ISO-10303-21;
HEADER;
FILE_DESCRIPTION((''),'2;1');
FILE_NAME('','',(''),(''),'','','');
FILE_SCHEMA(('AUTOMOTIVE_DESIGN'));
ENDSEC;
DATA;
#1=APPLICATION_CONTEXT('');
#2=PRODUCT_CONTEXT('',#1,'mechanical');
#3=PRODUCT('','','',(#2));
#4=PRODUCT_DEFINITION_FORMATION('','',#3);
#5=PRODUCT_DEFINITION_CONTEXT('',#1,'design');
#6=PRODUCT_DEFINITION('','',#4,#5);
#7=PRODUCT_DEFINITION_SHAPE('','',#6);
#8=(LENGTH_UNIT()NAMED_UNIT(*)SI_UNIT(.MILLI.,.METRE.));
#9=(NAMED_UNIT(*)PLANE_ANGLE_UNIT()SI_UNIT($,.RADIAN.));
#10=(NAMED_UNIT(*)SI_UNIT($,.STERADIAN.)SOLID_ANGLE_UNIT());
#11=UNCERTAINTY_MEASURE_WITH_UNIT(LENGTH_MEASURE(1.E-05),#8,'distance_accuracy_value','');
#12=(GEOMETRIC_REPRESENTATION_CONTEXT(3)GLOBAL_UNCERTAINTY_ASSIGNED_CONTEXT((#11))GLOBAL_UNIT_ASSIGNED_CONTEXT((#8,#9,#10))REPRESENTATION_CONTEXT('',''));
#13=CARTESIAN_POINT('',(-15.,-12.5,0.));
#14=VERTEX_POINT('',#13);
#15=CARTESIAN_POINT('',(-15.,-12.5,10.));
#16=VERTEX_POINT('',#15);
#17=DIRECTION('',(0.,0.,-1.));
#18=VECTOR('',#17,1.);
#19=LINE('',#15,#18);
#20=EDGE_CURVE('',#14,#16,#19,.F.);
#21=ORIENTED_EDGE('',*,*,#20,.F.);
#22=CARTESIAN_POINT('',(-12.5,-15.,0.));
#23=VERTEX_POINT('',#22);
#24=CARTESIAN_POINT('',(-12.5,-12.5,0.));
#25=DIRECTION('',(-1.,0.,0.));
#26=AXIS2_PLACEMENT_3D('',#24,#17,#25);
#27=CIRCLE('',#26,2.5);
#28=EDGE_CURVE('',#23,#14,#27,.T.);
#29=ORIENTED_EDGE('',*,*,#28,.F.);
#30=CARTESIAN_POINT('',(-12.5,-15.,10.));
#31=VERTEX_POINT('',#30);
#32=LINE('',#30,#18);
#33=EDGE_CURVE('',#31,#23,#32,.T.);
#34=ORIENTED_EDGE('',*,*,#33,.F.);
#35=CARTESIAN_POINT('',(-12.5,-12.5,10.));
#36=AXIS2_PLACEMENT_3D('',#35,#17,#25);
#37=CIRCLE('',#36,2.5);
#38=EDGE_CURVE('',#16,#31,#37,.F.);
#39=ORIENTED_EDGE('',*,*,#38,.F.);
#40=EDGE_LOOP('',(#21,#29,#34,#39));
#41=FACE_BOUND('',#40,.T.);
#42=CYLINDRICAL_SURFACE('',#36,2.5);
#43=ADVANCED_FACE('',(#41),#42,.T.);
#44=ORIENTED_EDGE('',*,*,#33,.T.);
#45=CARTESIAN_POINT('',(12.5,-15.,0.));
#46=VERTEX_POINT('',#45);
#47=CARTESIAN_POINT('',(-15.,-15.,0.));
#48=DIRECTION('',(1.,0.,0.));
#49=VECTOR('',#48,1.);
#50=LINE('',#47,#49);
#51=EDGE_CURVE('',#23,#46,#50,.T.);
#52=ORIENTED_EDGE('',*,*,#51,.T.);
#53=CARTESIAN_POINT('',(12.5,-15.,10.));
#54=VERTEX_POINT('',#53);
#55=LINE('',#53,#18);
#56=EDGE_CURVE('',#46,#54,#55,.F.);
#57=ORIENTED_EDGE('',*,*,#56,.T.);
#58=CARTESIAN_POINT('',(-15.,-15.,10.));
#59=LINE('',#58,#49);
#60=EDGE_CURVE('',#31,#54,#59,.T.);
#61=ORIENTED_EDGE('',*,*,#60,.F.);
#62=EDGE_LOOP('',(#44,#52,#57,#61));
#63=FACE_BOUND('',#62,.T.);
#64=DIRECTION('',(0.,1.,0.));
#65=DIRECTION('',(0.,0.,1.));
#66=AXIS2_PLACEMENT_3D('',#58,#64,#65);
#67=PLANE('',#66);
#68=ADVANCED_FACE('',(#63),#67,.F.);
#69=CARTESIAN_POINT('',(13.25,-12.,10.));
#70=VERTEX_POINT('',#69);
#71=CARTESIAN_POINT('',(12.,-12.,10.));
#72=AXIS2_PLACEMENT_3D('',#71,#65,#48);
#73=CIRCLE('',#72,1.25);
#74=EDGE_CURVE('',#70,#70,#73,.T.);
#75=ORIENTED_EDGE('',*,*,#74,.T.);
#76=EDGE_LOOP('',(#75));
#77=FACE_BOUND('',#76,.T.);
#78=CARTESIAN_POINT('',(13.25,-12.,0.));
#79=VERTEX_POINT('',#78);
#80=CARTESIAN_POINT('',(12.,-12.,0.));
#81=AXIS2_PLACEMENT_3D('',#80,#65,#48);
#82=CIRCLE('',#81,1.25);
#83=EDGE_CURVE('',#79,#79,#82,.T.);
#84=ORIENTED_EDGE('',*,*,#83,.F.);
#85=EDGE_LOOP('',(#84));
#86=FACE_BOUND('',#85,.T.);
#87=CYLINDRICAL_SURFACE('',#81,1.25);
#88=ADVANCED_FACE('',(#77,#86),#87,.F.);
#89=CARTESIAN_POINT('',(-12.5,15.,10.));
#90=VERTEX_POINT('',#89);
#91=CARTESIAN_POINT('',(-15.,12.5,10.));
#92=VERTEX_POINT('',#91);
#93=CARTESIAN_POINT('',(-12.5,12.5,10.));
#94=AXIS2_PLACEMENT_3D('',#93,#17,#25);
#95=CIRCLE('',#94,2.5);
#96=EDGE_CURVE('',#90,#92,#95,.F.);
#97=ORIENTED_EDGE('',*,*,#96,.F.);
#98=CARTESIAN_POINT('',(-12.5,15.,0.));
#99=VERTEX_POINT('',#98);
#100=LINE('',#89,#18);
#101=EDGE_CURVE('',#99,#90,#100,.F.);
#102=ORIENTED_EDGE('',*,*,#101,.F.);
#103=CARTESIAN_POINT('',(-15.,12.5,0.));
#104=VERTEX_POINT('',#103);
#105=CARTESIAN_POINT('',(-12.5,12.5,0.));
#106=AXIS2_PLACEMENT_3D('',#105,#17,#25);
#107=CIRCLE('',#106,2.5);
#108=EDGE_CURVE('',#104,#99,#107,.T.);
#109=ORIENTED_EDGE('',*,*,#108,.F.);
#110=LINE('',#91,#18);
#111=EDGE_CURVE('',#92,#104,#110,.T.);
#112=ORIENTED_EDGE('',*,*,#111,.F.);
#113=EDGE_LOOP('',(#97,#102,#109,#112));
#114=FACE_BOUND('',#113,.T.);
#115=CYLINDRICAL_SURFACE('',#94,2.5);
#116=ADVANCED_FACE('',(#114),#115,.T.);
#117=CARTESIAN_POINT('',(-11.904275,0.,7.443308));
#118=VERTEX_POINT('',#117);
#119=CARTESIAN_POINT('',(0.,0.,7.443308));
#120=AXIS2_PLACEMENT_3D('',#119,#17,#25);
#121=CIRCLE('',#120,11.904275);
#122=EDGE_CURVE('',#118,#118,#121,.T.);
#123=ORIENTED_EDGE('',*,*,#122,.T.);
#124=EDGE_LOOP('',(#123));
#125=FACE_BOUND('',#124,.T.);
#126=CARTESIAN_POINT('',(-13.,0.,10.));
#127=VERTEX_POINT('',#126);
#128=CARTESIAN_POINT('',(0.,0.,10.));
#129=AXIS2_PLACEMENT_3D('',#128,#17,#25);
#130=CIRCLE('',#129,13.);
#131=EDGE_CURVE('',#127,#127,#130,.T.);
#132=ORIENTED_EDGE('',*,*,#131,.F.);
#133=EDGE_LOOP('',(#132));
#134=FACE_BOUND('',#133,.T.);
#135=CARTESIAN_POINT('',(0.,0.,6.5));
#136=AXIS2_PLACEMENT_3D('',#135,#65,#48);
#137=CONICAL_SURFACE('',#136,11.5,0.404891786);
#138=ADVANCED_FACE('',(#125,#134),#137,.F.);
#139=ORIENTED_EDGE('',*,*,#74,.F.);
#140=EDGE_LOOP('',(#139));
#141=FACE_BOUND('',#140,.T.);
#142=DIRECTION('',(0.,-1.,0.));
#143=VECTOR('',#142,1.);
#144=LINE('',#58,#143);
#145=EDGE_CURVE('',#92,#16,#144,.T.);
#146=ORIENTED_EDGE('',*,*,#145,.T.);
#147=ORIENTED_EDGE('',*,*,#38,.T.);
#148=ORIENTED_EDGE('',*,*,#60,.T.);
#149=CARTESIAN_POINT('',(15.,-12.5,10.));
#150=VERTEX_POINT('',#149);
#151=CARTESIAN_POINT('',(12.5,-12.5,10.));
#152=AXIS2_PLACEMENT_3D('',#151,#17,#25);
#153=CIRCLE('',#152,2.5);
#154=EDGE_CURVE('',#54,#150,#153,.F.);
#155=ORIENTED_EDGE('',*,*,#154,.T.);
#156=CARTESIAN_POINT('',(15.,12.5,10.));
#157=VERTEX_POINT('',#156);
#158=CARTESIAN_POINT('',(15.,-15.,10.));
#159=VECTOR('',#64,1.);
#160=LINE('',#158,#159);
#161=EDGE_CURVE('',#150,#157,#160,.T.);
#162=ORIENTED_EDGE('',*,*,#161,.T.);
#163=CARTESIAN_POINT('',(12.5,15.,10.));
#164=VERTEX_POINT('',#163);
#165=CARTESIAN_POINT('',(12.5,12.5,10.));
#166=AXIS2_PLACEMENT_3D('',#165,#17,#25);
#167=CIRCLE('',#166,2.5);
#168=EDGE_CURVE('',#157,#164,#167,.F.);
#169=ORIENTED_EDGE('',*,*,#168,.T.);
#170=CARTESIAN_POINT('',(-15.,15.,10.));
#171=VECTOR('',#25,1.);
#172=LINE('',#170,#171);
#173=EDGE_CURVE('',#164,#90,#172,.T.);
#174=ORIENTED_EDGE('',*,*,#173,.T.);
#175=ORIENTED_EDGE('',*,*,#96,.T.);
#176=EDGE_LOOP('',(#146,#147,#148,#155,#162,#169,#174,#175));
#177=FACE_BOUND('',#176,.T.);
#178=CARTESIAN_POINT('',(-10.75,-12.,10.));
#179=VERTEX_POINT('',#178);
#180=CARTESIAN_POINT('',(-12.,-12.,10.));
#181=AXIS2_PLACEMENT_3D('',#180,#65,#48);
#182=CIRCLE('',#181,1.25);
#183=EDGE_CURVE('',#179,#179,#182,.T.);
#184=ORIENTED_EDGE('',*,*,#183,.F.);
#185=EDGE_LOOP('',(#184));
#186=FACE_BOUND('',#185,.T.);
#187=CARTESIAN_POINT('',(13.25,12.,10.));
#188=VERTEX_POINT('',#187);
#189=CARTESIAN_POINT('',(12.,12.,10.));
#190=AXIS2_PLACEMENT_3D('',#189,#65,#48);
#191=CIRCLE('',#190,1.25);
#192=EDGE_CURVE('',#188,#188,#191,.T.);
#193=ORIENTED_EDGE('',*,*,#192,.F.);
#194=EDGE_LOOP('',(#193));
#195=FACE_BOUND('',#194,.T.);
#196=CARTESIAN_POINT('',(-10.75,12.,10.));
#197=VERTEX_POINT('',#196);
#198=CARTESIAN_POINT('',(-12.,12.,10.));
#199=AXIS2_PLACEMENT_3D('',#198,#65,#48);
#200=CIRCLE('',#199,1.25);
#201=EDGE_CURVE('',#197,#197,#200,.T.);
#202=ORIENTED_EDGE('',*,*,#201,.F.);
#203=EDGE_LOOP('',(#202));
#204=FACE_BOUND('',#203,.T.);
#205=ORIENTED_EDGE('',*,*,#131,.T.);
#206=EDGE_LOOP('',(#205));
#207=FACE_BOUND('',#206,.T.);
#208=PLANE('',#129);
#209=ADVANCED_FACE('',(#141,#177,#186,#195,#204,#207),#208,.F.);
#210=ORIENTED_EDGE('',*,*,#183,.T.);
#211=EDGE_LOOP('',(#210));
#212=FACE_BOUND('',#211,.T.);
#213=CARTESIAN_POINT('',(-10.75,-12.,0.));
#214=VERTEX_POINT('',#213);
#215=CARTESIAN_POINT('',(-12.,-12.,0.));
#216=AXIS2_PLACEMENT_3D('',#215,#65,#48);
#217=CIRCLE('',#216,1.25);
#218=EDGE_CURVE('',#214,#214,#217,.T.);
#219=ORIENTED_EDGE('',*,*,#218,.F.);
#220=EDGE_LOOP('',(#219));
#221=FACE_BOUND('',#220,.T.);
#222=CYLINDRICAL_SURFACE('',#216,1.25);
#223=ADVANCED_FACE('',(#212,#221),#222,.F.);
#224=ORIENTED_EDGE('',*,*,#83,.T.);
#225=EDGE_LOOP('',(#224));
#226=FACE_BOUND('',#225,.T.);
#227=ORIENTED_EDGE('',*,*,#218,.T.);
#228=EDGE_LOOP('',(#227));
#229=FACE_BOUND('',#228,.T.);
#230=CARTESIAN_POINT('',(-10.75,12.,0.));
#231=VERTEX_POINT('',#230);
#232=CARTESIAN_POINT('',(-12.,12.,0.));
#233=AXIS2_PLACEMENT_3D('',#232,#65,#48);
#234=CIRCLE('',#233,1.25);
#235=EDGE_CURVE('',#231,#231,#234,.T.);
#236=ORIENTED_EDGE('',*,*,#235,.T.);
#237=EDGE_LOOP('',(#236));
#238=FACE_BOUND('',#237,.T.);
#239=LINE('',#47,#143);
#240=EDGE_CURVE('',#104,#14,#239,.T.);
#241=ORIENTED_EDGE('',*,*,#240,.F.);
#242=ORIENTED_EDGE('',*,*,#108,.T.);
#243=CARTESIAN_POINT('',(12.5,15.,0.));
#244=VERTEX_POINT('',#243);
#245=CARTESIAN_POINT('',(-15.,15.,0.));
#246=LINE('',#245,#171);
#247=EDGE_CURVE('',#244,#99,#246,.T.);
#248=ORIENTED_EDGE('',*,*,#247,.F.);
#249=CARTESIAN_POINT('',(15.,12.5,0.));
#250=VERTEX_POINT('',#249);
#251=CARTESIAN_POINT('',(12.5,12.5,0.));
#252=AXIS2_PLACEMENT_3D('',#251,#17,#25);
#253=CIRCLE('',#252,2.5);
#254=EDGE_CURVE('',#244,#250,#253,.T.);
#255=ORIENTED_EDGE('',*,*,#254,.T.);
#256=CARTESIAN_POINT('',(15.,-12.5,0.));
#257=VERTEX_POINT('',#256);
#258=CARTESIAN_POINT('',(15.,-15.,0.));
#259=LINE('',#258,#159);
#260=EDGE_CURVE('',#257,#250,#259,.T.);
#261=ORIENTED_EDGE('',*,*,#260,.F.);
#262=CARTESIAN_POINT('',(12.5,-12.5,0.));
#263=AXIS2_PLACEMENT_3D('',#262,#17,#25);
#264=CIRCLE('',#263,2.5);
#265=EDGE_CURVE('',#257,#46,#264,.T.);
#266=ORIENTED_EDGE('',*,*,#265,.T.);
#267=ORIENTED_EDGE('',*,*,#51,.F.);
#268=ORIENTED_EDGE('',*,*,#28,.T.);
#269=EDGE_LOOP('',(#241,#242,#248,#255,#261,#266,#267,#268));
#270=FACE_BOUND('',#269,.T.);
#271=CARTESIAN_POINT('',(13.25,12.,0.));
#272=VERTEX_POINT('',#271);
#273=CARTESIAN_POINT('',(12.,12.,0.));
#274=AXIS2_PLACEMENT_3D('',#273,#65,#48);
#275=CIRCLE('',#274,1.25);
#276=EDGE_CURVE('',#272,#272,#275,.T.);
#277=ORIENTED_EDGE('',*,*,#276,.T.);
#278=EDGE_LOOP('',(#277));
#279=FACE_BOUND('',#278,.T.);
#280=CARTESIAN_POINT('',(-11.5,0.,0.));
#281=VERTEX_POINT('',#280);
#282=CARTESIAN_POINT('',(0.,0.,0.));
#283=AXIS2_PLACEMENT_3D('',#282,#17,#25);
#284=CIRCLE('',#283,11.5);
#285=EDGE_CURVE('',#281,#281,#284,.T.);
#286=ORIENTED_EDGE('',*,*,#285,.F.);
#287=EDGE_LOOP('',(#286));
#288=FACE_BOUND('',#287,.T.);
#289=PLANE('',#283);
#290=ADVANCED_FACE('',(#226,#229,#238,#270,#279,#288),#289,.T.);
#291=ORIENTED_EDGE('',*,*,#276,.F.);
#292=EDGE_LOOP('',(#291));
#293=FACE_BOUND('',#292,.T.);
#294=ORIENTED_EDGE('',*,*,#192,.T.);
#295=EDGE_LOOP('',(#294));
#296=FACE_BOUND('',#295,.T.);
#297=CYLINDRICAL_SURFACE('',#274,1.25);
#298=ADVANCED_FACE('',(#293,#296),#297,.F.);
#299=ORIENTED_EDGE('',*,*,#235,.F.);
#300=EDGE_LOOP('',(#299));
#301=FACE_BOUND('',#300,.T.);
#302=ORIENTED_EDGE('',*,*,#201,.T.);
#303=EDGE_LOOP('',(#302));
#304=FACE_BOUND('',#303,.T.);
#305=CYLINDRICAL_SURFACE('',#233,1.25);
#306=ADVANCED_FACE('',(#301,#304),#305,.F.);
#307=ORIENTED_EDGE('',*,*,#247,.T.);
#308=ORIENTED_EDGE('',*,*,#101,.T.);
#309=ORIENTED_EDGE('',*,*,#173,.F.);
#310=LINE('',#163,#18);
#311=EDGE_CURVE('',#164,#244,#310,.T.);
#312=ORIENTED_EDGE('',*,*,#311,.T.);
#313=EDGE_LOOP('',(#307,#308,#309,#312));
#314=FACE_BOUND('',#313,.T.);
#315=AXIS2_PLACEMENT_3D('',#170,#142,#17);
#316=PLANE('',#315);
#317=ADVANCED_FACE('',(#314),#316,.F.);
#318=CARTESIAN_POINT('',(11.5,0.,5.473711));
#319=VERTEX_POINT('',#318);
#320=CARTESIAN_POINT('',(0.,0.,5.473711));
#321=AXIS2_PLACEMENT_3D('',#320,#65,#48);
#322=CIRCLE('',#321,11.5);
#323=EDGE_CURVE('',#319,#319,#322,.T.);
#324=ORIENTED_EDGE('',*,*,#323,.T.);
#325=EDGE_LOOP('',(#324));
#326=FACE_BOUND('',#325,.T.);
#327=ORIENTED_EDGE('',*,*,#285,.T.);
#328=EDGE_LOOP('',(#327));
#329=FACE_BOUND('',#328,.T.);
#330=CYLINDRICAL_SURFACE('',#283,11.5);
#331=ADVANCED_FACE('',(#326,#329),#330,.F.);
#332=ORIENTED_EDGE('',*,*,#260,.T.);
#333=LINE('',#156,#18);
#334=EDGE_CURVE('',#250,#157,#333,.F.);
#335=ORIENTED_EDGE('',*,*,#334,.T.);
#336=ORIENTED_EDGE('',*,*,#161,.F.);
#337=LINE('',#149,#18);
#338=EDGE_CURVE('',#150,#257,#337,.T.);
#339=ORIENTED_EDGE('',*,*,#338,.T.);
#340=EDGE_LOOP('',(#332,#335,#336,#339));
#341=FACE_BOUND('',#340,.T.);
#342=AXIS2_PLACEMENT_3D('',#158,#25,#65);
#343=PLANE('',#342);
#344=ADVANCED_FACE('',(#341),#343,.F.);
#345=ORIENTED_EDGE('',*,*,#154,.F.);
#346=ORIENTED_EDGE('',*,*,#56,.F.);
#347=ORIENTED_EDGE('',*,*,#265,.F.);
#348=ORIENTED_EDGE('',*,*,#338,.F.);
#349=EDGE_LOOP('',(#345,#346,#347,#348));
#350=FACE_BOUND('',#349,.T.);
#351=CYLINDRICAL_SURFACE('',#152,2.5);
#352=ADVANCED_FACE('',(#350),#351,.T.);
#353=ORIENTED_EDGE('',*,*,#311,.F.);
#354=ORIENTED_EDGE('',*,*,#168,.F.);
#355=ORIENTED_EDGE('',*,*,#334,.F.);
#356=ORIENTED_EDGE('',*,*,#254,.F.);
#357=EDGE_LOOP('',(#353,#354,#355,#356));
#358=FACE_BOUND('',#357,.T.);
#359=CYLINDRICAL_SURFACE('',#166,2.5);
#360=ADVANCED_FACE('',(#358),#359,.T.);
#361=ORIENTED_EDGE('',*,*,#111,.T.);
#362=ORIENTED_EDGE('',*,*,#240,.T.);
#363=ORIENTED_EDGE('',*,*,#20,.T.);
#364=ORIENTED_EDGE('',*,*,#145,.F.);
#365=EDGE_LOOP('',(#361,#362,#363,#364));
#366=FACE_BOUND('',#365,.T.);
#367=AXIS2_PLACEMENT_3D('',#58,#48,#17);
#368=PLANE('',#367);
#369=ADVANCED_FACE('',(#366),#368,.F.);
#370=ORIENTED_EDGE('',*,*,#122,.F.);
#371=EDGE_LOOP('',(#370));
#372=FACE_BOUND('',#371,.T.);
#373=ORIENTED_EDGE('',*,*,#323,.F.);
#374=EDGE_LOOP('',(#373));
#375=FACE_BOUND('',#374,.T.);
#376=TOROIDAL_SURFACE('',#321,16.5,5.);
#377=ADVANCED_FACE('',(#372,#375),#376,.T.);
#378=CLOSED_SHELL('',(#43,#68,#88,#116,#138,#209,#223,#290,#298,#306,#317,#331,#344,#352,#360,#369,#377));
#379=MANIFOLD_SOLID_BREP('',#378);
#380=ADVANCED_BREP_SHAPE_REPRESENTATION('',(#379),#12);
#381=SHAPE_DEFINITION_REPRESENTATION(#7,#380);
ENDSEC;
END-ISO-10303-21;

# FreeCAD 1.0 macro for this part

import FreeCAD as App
import Part
import Sketcher

V = App.Vector


def edges_at(feature, points):
    """Names of the edges that pass closest to the given points."""
    edges = feature.Shape.Edges
    near = lambda p: min(range(len(edges)), key=lambda i: edges[i].distToShape(Part.Vertex(*p))[0])
    return sorted({f"Edge{near(p) + 1}" for p in points})


def add_polygon(sketch, points):
    """Adds a closed chain of lines whose ends are joined by coincident constraints."""
    first, n = sketch.GeometryCount, len(points)
    for a, b in zip(points, points[1:] + points[:1]):
        sketch.addGeometry(Part.LineSegment(App.Vector(*a, 0), App.Vector(*b, 0)), False)
    for i in range(n):
        sketch.addConstraint(Sketcher.Constraint("Coincident", first + i, 2, first + (i + 1) % n, 1))

doc = App.newDocument("Part")
body = doc.addObject("PartDesign::Body", "Body")

sketch1 = body.newObject("Sketcher::SketchObject", "Sketch")
sketch1.AttachmentSupport = (doc.getObject("XY_Plane"), [""])
sketch1.MapMode = "FlatFace"
add_polygon(sketch1, [(-15, 15), (-15, -15), (15, -15), (15, 15)])
sketch1.addConstraint(Sketcher.Constraint("Vertical", 0))
sketch1.addConstraint(Sketcher.Constraint("Horizontal", 1))
sketch1.addConstraint(Sketcher.Constraint("Vertical", 2))
sketch1.addConstraint(Sketcher.Constraint("Horizontal", 3))
sketch1.addConstraint(Sketcher.Constraint("Symmetric", 0, 2, 2, 2, -1, 1))
sketch1.addConstraint(Sketcher.Constraint("Equal", 3, 0))
sketch1.addConstraint(Sketcher.Constraint("DistanceX", 1, 1, 1, 2, 30.0))
pad1 = body.newObject("PartDesign::Pad", "Pad")
pad1.Profile = sketch1
pad1.Length = 10
doc.recompute()

fillet = body.newObject("PartDesign::Fillet", "Fillet")
fillet.Base = (pad1, edges_at(pad1, [
    (15, -15, 5),
    (-15, -15, 5),
    (-15, 15, 5),
    (15, 15, 5),
]))
fillet.Radius = 2.5

sketch2 = body.newObject("Sketcher::SketchObject", "Sketch001")
sketch2.AttachmentSupport = (doc.getObject("XY_Plane"), [""])
sketch2.MapMode = "FlatFace"
sketch2.AttachmentOffset = App.Placement(V(0, 0, 10), App.Rotation())
sketch2.addGeometry(Part.Circle(V(-12, 12, 0), V(0, 0, 1), 1.2), False)
sketch2.addGeometry(Part.Circle(V(12, 12, 0), V(0, 0, 1), 1.2), False)
sketch2.addGeometry(Part.Circle(V(12, -12, 0), V(0, 0, 1), 1.2), False)
sketch2.addGeometry(Part.Circle(V(-12, -12, 0), V(0, 0, 1), 1.2), False)
sketch2.addConstraint(Sketcher.Constraint("Equal", 0, 1))
sketch2.addConstraint(Sketcher.Constraint("Equal", 1, 2))
sketch2.addConstraint(Sketcher.Constraint("Equal", 2, 3))
sketch2.addConstraint(Sketcher.Constraint("Symmetric", 0, 3, 2, 3, -1, 1))
sketch2.addConstraint(Sketcher.Constraint("Symmetric", 1, 3, 3, 3, -1, 1))
sketch2.addConstraint(Sketcher.Constraint("Symmetric", 0, 3, 1, 3, -2))
sketch2.addConstraint(Sketcher.Constraint("Diameter", 0, 2.5))
sketch2.addConstraint(Sketcher.Constraint("DistanceX", 0, 3, -1, 1, 12.0))
sketch2.addConstraint(Sketcher.Constraint("DistanceY", -1, 1, 0, 3, 12.0))
pocket1 = body.newObject("PartDesign::Pocket", "Pocket")
pocket1.Profile = sketch2
pocket1.Type = "ThroughAll"

sketch3 = body.newObject("Sketcher::SketchObject", "Sketch002")
sketch3.AttachmentSupport = (doc.getObject("YZ_Plane"), [""])
sketch3.MapMode = "FlatFace"
add_polygon(sketch3, [(0, 10), (0, 0), (11.5, 0), (11.5, 6.5), (13, 10)])
sketch3.addConstraint(Sketcher.Constraint("Vertical", 0))
sketch3.addConstraint(Sketcher.Constraint("Horizontal", 1))
sketch3.addConstraint(Sketcher.Constraint("Vertical", 2))
sketch3.addConstraint(Sketcher.Constraint("Horizontal", 4))
sketch3.addConstraint(Sketcher.Constraint("Coincident", 0, 2, -1, 1))
sketch3.addConstraint(Sketcher.Constraint("DistanceX", 4, 2, 4, 1, 13.0))
sketch3.addConstraint(Sketcher.Constraint("DistanceY", 0, 2, 0, 1, 10.0))
sketch3.addConstraint(Sketcher.Constraint("DistanceX", 1, 1, 1, 2, 11.5))
sketch3.addConstraint(Sketcher.Constraint("DistanceY", 2, 1, 2, 2, 6.5))
groove = body.newObject("PartDesign::Groove", "Groove")
groove.Profile = sketch3
groove.ReferenceAxis = (sketch3, ["V_Axis"])
groove.Angle = 360
doc.recompute()

fillet2 = body.newObject("PartDesign::Fillet", "Fillet001")
fillet2.Base = (groove, edges_at(groove, [(11.5, 0, 6.5)]))
fillet2.Radius = 5

doc.recompute()
